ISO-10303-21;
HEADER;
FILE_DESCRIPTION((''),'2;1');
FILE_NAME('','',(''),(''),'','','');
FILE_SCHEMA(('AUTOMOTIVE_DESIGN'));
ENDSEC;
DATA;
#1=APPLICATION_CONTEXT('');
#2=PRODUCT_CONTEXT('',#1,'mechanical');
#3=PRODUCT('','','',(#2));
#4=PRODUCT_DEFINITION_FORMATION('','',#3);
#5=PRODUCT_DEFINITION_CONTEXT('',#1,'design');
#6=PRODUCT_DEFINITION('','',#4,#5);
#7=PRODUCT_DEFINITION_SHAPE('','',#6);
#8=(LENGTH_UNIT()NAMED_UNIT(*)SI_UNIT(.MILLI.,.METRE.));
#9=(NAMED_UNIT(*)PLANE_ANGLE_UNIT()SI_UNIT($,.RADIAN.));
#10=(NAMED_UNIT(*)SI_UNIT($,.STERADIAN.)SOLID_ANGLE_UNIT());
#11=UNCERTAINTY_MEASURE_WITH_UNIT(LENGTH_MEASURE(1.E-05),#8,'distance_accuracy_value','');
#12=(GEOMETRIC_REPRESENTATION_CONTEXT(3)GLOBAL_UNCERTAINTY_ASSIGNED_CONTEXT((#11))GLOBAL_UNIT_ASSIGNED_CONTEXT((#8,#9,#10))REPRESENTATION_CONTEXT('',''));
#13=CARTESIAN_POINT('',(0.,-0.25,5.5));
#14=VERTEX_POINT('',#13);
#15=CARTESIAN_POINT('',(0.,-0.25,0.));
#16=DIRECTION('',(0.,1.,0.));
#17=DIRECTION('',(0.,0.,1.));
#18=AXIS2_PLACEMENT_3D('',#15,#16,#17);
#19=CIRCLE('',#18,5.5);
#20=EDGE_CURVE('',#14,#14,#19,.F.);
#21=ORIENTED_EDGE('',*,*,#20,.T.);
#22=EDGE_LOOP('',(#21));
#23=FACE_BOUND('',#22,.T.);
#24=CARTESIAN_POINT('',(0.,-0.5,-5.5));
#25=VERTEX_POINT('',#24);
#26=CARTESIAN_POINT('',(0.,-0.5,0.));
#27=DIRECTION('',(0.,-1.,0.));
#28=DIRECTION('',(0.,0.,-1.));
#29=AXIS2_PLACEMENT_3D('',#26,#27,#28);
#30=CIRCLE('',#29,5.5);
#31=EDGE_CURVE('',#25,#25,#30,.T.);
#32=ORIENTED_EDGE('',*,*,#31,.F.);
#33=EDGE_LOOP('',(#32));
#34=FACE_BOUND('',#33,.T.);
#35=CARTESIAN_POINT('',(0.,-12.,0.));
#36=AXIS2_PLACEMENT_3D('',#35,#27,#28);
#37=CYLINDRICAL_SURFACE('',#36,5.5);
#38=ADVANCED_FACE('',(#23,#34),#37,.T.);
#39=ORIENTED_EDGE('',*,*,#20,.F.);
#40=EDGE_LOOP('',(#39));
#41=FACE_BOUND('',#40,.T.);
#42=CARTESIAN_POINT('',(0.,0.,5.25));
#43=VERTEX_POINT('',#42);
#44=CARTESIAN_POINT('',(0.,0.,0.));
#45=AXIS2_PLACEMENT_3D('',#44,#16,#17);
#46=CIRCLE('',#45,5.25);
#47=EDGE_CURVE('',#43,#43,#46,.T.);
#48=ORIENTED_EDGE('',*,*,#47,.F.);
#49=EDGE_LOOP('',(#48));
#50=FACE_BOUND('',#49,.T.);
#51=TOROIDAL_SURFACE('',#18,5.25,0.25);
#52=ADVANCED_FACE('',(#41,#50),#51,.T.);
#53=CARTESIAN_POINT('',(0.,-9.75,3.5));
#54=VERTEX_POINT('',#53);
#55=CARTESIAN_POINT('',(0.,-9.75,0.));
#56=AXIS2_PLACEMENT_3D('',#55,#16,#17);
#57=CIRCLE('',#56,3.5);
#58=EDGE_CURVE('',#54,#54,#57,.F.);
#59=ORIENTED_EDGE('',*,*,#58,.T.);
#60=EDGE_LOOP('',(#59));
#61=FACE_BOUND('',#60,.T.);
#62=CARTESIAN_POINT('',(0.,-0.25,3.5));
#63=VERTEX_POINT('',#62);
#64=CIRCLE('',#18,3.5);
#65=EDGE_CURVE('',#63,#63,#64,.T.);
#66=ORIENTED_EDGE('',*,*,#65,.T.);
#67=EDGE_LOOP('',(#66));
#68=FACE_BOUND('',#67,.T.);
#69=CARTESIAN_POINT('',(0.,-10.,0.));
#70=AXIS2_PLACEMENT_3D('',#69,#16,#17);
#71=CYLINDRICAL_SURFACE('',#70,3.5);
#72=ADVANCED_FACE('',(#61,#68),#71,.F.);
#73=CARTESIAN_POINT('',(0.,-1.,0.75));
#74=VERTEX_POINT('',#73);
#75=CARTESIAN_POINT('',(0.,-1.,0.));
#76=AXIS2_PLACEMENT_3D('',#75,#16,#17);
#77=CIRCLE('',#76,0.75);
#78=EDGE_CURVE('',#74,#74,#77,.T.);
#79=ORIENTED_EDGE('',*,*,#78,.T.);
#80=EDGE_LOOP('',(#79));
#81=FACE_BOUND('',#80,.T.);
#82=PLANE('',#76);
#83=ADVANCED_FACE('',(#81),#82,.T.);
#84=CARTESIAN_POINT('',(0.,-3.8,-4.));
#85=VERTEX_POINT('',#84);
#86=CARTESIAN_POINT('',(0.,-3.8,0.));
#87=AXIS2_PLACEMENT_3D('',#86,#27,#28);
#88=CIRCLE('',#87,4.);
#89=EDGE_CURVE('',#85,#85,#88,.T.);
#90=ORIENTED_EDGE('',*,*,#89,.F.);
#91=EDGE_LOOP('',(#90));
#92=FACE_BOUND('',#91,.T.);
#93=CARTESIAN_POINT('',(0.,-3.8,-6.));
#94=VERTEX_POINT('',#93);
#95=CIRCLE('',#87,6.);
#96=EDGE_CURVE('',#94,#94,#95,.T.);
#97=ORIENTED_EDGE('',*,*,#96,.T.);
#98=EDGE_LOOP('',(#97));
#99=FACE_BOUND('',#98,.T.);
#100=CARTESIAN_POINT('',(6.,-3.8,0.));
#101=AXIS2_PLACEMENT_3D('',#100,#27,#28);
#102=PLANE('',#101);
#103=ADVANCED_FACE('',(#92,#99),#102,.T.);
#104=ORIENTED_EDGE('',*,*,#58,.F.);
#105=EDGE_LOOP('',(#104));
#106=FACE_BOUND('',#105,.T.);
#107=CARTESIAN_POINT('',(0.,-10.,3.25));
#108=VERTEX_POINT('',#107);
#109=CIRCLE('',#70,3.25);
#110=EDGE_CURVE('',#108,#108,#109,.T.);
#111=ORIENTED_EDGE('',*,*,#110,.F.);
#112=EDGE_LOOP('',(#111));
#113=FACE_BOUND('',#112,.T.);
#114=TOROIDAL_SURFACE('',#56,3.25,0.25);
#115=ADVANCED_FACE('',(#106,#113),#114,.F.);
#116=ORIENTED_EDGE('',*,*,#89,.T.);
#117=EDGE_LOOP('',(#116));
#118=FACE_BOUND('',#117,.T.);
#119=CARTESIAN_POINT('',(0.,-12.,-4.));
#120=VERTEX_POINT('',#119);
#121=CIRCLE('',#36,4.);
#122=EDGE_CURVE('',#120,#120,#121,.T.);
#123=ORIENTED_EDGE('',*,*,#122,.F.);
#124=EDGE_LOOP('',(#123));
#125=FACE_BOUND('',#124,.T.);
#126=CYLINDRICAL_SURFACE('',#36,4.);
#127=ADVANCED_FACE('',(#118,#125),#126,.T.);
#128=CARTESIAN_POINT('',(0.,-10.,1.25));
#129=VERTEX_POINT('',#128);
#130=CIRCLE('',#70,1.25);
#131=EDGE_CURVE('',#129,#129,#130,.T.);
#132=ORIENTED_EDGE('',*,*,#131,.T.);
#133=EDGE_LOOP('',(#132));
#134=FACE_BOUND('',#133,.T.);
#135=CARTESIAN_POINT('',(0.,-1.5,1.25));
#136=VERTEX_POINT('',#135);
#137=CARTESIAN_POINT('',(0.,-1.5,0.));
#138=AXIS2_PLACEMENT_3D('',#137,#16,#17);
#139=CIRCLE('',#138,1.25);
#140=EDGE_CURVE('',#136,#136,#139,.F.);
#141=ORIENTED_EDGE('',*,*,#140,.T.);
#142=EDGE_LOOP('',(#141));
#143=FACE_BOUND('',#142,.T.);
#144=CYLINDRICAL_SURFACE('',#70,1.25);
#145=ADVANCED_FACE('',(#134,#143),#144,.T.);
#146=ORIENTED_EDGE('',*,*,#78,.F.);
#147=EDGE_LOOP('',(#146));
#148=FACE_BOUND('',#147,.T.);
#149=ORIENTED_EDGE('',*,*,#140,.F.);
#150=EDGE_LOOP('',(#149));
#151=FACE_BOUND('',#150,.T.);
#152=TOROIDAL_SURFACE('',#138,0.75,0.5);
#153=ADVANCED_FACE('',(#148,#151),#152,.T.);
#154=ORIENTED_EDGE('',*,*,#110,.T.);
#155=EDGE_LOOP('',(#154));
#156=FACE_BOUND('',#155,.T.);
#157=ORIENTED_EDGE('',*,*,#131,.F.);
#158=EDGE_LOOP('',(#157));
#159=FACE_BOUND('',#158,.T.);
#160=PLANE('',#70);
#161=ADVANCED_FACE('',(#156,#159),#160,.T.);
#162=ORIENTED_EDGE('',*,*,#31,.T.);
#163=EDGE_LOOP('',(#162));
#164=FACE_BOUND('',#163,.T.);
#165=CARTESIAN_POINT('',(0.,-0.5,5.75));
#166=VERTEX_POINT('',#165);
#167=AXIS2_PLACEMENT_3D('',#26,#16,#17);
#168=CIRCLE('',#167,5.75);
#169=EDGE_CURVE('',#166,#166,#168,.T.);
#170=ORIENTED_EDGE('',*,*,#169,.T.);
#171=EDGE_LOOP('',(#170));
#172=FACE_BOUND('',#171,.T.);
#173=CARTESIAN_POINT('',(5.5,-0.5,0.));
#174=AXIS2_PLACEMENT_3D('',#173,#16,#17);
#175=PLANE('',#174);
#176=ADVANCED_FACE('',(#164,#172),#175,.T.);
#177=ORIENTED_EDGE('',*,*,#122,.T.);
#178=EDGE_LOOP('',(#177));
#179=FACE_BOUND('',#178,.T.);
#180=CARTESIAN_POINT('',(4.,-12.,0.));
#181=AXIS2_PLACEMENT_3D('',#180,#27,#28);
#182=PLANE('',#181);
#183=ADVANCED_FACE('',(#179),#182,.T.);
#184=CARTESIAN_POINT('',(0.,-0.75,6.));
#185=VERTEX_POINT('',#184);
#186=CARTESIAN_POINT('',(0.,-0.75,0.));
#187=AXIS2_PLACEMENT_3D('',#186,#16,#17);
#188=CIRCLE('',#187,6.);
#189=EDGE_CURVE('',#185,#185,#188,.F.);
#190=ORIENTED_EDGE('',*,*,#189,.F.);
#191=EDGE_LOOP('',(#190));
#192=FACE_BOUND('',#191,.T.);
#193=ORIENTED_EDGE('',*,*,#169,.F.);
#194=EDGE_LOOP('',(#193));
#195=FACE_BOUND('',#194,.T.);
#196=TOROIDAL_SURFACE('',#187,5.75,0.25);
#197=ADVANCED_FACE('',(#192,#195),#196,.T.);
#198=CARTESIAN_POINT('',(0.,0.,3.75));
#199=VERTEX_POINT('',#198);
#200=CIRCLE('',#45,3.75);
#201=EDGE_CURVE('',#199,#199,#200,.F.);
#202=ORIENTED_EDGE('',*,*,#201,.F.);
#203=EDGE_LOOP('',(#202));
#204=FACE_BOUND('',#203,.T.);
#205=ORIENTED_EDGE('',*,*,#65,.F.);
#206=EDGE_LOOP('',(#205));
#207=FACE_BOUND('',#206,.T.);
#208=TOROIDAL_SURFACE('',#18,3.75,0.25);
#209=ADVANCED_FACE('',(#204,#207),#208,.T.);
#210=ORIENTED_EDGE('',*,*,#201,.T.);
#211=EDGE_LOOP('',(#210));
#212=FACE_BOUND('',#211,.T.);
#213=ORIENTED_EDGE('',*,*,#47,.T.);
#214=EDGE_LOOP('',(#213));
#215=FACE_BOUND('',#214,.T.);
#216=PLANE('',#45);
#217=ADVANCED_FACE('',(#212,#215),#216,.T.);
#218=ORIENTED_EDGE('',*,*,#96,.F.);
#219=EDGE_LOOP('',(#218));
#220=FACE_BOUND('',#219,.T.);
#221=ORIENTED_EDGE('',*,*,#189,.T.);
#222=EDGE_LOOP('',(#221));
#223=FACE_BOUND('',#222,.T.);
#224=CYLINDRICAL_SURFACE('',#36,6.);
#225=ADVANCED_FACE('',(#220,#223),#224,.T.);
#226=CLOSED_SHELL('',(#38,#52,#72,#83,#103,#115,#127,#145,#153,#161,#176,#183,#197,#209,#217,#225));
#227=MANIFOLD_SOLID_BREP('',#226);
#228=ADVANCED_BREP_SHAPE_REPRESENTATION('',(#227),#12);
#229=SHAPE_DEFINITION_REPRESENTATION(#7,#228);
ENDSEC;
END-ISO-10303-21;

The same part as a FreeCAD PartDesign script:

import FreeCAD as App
import Part
import Sketcher

V = App.Vector
Q = App.Units.Quantity


def edges_at(feature, points):
    """Names of the edges that pass closest to the given points."""
    edges = feature.Shape.Edges
    near = lambda p: min(range(len(edges)), key=lambda i: edges[i].distToShape(Part.Vertex(*p))[0])
    return sorted({f"Edge{near(p) + 1}" for p in points})


def add_polygon(sketch, points):
    """Adds a closed chain of lines whose ends are joined by coincident constraints."""
    first, n = sketch.GeometryCount, len(points)
    for a, b in zip(points, points[1:] + points[:1]):
        sketch.addGeometry(Part.LineSegment(App.Vector(*a, 0), App.Vector(*b, 0)), False)
    for i in range(n):
        sketch.addConstraint(Sketcher.Constraint("Coincident", first + i, 2, first + (i + 1) % n, 1))

doc = App.newDocument("Part")
body = doc.addObject("PartDesign::Body", "Body")

# Sketch on XY plane
sketch1 = body.newObject("Sketcher::SketchObject", "Sketch")
sketch1.AttachmentSupport = (doc.getObject("XY_Plane"), [""])
sketch1.MapMode = "FlatFace"
add_polygon(sketch1, [(5.5, 0), (0, 0), (0, -12), (4, -12), (4, -3.8), (6, -3.8), (6, -0.5), (5.5, -0.5)])  # lines 0-7
sketch1.addConstraint(Sketcher.Constraint("Horizontal", 0))
sketch1.addConstraint(Sketcher.Constraint("Vertical", 1))
sketch1.addConstraint(Sketcher.Constraint("Horizontal", 2))
sketch1.addConstraint(Sketcher.Constraint("Vertical", 3))
sketch1.addConstraint(Sketcher.Constraint("Horizontal", 4))
sketch1.addConstraint(Sketcher.Constraint("Vertical", 5))
sketch1.addConstraint(Sketcher.Constraint("Horizontal", 6))
sketch1.addConstraint(Sketcher.Constraint("Vertical", 7))
sketch1.addConstraint(Sketcher.Constraint("Coincident", 0, 2, -1, 1))
sketch1.addConstraint(Sketcher.Constraint("Equal", 6, 7))
sketch1.addConstraint(Sketcher.Constraint("DistanceX", 2, 1, 2, 2, Q("4 mm")))
sketch1.addConstraint(Sketcher.Constraint("DistanceX", 4, 1, 4, 2, Q("2 mm")))
sketch1.addConstraint(Sketcher.Constraint("DistanceY", 1, 2, 1, 1, Q("12 mm")))
sketch1.addConstraint(Sketcher.Constraint("DistanceX", 0, 2, 0, 1, Q("5.5 mm")))
sketch1.addConstraint(Sketcher.Constraint("DistanceY", 3, 1, 3, 2, Q("8.2 mm")))
revolution = body.newObject("PartDesign::Revolution", "Revolution")
revolution.Profile = sketch1
revolution.ReferenceAxis = (sketch1, ["V_Axis"])
revolution.Angle = 360

# Sketch on XZ plane
sketch2 = body.newObject("Sketcher::SketchObject", "Sketch001")
sketch2.AttachmentSupport = (doc.getObject("XZ_Plane"), [""])
sketch2.MapMode = "FlatFace"
sketch2.addGeometry(Part.Circle(V(0, 0, 0), V(0, 0, 1), 3.5), False)
sketch2.addGeometry(Part.Circle(V(0, 0, 0), V(0, 0, 1), 1.2), False)
sketch2.addConstraint(Sketcher.Constraint("Coincident", 0, 3, -1, 1))
sketch2.addConstraint(Sketcher.Constraint("Coincident", 1, 3, -1, 1))
sketch2.addConstraint(Sketcher.Constraint("Diameter", 0, Q("7 mm")))
sketch2.addConstraint(Sketcher.Constraint("Diameter", 1, Q("2.5 mm")))
pocket1 = body.newObject("PartDesign::Pocket", "Pocket")
pocket1.Profile = sketch2
pocket1.Length = 10
pocket1.Reversed = True

# Sketch on XZ plane
sketch3 = body.newObject("Sketcher::SketchObject", "Sketch002")
sketch3.AttachmentSupport = (doc.getObject("XZ_Plane"), [""])
sketch3.MapMode = "FlatFace"
sketch3.addGeometry(Part.Circle(V(0, 0, 0), V(0, 0, 1), 1.2), False)
sketch3.addConstraint(Sketcher.Constraint("Coincident", 0, 3, -1, 1))
sketch3.addConstraint(Sketcher.Constraint("Diameter", 0, Q("2.5 mm")))
pocket2 = body.newObject("PartDesign::Pocket", "Pocket001")
pocket2.Profile = sketch3
pocket2.Length = 1
pocket2.Reversed = True
doc.recompute()

fillet = body.newObject("PartDesign::Fillet", "Fillet")
fillet.Base = (pocket2, edges_at(pocket2, [(0, -1, -1.25)]))
fillet.Radius = 0.5
doc.recompute()

fillet2 = body.newObject("PartDesign::Fillet", "Fillet001")
fillet2.Base = (fillet, edges_at(fillet, [
    (0, -10, -3.5),
    (0, 0, -3.5),
    (0, -0.5, 6),
    (0, 0, 5.5),
]))
fillet2.Radius = 0.25

doc.recompute()
